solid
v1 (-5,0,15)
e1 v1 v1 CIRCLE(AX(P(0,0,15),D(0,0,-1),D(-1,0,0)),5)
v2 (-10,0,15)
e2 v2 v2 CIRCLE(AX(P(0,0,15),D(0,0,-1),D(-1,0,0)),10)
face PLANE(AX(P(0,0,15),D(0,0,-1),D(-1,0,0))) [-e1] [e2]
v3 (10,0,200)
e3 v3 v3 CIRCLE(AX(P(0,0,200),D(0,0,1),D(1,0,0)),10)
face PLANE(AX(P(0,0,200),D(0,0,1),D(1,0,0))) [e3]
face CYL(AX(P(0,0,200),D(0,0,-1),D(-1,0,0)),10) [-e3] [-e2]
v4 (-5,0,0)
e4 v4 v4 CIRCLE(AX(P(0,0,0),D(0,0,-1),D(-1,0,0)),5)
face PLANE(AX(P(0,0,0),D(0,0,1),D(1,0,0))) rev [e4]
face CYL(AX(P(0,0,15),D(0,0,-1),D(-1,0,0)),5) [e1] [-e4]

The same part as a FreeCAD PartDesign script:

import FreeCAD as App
import Part
import Sketcher
Q = App.Units.Quantity

doc = App.newDocument("Part")
params = doc.addObject("Spreadsheet::Sheet", "Params")
for row, (alias, value) in enumerate([
    ("sketch1_diameter", "20 mm"),
    ("pad1_length", "200 mm"),
    ("sketch2_diameter", "10 mm"),
    ("pocket1_length", "15 mm"),
], start=1):
    params.set(f"A{row}", alias)
    params.set(f"B{row}", "=" + value)
    params.setAlias(f"B{row}", alias)

body = doc.addObject("PartDesign::Body", "Body")

# Sketch on XY plane
sketch1 = body.newObject("Sketcher::SketchObject", "Sketch")
sketch1.AttachmentSupport = (doc.getObject("XY_Plane"), [""])
sketch1.MapMode = "FlatFace"
sketch1.addGeometry(Part.Circle(App.Vector(0, 0, 0), App.Vector(0, 0, 1), 10), False)
sketch1.addConstraint([
    Sketcher.Constraint("Coincident", 0, 3, -1, 1),
    Sketcher.Constraint("Diameter", 0, Q("20 mm")),
])
sketch1.setExpression("Constraints[1]", "Params.sketch1_diameter")
pad1 = body.newObject("PartDesign::Pad", "Pad")
pad1.Profile = sketch1
pad1.setExpression("Length", "Params.pad1_length")

# Sketch on XY plane
sketch2 = body.newObject("Sketcher::SketchObject", "Sketch001")
sketch2.AttachmentSupport = (doc.getObject("XY_Plane"), [""])
sketch2.MapMode = "FlatFace"
sketch2.addGeometry([
    Part.Circle(App.Vector(0, 0, 0), App.Vector(0, 0, 1), 11),
    Part.Circle(App.Vector(0, 0, 0), App.Vector(0, 0, 1), 5),
], False)
sketch2.addConstraint([
    Sketcher.Constraint("Coincident", 0, 3, -1, 1),
    Sketcher.Constraint("Coincident", 1, 3, -1, 1),
    Sketcher.Constraint("Diameter", 1, Q("10 mm")),
    Sketcher.Constraint("Diameter", 0, Q("21.785218 mm")),
])
sketch2.setExpression("Constraints[2]", "Params.sketch2_diameter")
pocket1 = body.newObject("PartDesign::Pocket", "Pocket")
pocket1.Profile = sketch2
pocket1.setExpression("Length", "Params.pocket1_length")
pocket1.Reversed = True

doc.recompute()
